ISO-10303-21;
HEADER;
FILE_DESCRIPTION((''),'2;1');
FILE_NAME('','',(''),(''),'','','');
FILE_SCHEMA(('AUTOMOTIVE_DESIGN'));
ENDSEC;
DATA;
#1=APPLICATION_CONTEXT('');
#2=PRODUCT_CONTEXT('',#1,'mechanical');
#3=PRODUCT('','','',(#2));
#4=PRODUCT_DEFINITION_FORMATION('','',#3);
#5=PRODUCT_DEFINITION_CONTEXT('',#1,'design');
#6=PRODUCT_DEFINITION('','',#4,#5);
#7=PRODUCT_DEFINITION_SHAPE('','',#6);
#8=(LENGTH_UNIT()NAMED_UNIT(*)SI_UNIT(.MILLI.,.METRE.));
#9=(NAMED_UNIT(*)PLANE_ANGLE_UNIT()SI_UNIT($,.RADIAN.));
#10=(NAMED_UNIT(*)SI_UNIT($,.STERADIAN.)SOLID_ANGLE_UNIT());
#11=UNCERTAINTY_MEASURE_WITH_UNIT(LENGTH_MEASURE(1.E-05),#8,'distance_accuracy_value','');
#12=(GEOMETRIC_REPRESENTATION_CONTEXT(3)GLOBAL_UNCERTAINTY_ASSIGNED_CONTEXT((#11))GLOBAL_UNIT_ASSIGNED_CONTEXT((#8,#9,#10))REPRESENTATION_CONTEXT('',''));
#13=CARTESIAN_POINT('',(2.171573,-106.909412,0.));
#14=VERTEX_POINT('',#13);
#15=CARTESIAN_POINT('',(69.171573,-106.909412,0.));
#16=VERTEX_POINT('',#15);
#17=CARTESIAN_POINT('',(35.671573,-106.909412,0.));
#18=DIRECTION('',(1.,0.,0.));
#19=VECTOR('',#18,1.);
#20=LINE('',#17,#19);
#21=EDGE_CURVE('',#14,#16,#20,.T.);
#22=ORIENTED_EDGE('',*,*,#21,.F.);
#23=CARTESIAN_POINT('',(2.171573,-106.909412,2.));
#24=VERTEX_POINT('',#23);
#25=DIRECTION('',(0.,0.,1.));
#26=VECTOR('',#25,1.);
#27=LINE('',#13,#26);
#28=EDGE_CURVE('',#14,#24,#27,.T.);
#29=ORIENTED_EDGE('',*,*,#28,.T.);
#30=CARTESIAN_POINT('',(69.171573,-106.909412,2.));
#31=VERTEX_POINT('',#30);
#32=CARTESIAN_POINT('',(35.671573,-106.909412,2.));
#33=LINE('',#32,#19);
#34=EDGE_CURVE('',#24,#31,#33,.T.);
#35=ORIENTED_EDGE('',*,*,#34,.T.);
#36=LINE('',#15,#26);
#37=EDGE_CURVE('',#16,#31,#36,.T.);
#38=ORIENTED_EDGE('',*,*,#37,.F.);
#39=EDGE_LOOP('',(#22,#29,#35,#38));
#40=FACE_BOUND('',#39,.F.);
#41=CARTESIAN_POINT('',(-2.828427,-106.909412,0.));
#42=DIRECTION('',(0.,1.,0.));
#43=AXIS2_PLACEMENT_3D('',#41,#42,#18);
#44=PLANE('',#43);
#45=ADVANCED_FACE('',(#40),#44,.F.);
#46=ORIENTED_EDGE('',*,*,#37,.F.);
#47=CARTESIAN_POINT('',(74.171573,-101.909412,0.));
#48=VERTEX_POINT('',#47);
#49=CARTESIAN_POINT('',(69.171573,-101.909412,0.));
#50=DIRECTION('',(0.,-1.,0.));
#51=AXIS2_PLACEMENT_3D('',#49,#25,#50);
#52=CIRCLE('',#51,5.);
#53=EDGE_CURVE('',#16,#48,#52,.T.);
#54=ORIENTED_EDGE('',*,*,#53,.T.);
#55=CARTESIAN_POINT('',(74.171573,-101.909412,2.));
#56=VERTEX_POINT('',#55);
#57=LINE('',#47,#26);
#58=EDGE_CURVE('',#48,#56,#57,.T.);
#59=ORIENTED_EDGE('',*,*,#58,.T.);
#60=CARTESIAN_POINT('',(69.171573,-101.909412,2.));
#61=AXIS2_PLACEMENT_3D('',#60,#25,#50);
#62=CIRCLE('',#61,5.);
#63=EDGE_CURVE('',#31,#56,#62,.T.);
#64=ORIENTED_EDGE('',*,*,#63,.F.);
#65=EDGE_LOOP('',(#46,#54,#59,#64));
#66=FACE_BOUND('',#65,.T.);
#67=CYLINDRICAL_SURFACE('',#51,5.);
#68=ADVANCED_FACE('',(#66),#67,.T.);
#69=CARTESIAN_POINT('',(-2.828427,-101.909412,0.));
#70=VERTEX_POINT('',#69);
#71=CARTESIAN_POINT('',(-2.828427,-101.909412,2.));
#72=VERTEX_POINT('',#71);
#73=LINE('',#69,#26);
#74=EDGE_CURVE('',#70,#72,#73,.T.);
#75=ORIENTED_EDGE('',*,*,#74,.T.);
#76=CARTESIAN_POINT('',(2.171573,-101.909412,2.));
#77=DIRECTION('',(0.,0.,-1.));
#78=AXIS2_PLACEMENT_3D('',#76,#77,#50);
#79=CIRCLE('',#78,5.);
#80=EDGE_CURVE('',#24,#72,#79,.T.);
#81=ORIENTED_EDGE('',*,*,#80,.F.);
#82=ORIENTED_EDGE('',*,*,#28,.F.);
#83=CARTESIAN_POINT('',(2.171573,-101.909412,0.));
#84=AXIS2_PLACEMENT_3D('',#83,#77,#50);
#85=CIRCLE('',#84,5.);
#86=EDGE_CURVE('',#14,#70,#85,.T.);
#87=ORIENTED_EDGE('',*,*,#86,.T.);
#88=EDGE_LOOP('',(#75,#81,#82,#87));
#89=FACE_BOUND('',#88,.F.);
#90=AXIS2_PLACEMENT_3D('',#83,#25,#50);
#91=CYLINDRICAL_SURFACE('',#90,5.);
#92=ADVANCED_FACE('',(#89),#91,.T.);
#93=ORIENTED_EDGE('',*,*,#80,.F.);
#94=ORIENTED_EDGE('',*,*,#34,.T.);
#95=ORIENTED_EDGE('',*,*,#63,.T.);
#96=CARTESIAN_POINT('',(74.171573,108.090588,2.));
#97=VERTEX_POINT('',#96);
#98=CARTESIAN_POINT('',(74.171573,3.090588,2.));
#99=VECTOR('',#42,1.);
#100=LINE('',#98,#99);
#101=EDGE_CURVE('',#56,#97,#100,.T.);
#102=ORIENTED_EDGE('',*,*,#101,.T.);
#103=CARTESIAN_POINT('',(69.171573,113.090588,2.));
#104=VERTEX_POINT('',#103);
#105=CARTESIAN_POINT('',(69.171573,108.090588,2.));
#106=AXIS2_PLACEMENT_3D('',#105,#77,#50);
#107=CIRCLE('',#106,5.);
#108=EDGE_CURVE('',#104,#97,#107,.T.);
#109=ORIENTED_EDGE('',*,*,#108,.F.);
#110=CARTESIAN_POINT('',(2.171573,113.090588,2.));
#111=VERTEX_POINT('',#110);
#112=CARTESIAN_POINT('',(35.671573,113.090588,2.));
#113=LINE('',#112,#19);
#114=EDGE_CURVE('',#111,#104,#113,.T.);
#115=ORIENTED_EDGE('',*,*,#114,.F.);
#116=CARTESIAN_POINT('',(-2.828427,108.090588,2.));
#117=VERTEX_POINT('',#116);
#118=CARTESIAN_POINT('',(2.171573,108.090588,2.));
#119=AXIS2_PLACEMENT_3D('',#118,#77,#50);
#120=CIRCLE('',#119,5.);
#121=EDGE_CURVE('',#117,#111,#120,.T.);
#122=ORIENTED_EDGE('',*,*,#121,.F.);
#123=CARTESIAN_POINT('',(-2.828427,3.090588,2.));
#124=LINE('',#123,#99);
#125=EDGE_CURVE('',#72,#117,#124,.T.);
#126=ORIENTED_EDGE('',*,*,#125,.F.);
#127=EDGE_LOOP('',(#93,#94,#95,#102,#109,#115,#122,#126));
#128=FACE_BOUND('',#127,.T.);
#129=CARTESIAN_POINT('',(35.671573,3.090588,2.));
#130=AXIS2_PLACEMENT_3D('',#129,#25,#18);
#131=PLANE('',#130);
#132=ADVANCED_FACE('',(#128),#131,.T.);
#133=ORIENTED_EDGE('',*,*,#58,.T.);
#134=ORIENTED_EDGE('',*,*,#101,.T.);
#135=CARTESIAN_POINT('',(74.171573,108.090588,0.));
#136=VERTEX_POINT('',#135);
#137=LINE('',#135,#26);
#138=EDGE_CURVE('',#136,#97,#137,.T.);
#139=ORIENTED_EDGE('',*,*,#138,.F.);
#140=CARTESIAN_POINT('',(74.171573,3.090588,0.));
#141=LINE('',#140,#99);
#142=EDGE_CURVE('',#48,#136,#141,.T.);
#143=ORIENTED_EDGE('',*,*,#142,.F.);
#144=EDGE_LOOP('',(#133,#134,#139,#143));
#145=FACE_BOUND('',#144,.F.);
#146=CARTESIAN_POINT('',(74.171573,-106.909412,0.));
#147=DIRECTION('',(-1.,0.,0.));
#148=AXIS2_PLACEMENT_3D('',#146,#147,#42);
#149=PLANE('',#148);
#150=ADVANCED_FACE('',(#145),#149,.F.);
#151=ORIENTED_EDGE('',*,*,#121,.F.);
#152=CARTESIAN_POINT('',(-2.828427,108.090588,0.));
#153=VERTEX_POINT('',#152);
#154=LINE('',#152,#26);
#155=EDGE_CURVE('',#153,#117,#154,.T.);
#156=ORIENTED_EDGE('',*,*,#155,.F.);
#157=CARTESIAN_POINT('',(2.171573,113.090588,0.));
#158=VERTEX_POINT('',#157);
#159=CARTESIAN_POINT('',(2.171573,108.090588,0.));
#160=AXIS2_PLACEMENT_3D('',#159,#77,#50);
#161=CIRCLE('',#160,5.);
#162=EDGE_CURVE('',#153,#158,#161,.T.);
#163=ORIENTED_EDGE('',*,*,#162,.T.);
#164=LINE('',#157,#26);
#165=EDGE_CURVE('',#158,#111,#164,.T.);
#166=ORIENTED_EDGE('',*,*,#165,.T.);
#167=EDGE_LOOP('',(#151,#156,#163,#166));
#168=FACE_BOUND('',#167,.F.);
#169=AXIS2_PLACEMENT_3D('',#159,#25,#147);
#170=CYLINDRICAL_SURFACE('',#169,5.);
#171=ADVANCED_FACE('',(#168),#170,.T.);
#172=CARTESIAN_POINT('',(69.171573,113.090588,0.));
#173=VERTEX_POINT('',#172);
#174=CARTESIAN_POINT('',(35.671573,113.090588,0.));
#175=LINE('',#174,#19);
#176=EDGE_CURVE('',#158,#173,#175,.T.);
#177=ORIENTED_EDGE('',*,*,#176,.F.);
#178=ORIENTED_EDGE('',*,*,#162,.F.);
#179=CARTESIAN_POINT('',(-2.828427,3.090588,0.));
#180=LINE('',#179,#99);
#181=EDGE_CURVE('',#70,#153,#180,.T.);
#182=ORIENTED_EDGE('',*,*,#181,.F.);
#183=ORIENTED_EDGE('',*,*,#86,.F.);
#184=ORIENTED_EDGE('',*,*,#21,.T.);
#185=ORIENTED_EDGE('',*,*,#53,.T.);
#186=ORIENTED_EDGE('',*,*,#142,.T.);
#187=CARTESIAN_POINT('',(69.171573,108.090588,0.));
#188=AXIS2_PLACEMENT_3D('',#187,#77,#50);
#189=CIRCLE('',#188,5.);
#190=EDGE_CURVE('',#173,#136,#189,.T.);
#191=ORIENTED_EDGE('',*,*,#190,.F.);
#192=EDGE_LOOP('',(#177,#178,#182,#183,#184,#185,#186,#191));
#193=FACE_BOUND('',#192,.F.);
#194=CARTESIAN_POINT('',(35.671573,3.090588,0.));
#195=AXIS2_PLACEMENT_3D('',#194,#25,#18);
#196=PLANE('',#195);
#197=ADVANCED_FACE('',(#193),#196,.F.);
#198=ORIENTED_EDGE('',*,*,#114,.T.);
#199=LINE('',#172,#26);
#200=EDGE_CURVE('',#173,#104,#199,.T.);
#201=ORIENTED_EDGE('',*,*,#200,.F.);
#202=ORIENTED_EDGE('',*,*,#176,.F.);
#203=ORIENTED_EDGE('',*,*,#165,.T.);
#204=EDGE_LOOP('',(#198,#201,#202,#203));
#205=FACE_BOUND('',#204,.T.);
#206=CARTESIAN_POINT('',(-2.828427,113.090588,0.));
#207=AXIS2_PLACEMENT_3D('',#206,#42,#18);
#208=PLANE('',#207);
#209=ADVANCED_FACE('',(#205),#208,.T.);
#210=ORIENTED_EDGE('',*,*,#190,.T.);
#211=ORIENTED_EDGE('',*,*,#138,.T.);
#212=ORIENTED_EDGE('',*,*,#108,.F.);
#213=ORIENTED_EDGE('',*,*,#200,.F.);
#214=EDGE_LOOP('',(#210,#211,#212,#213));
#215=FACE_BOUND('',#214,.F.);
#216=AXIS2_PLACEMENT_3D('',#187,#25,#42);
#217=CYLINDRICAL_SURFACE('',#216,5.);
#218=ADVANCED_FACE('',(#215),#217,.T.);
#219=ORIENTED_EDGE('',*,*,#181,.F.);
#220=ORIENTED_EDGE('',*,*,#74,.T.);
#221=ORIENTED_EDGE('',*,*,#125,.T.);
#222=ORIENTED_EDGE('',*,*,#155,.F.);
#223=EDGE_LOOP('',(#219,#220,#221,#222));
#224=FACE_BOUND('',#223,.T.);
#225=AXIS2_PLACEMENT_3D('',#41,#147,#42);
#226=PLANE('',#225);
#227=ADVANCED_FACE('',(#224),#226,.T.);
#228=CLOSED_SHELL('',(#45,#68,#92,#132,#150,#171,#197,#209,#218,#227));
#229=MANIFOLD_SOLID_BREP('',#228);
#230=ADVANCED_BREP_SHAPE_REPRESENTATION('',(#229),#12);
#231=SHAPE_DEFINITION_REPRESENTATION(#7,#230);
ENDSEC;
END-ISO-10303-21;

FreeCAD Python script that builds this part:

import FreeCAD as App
import Part
import Sketcher

V = App.Vector


def edges_at(feature, points):
    """Names of the edges that pass closest to the given points."""
    edges = feature.Shape.Edges
    near = lambda p: min(range(len(edges)), key=lambda i: edges[i].distToShape(Part.Vertex(*p))[0])
    return sorted({f"Edge{near(p) + 1}" for p in points})


def add_polygon(sketch, points):
    """Adds a closed chain of lines whose ends are joined by coincident constraints."""
    first, n = sketch.GeometryCount, len(points)
    for a, b in zip(points, points[1:] + points[:1]):
        sketch.addGeometry(Part.LineSegment(App.Vector(*a, 0), App.Vector(*b, 0)), False)
    for i in range(n):
        sketch.addConstraint(Sketcher.Constraint("Coincident", first + i, 2, first + (i + 1) % n, 1))

doc = App.newDocument("Part")
body = doc.addObject("PartDesign::Body", "Body")

sketch1 = body.newObject("Sketcher::SketchObject", "Sketch")
sketch1.AttachmentSupport = (doc.getObject("XY_Plane"), [""])
sketch1.MapMode = "FlatFace"
add_polygon(sketch1, [(-3, 113), (-3, -107), (74, -107), (74, 113)])
sketch1.addConstraint([
    Sketcher.Constraint("Vertical", 0),
    Sketcher.Constraint("Horizontal", 1),
    Sketcher.Constraint("Vertical", 2),
    Sketcher.Constraint("Horizontal", 3),
    Sketcher.Constraint("DistanceX", 1, 1, 1, 2, 77.0),
    Sketcher.Constraint("DistanceY", 0, 2, 0, 1, 220.0),
    Sketcher.Constraint("DistanceX", 0, 2, -1, 1, 2.828427),
    Sketcher.Constraint("DistanceY", 0, 2, -1, 1, 106.909412),
])
pad1 = body.newObject("PartDesign::Pad", "Pad")
pad1.Profile = sketch1
pad1.Length = 2
doc.recompute()

fillet = body.newObject("PartDesign::Fillet", "Fillet")
fillet.Base = (pad1, edges_at(pad1, [(74.172, -106.909, 1)]))
fillet.Radius = 5
doc.recompute()

fillet2 = body.newObject("PartDesign::Fillet", "Fillet001")
fillet2.Base = (fillet, edges_at(fillet, [(-2.828, -106.909, 1)]))
fillet2.Radius = 5
doc.recompute()

fillet3 = body.newObject("PartDesign::Fillet", "Fillet002")
fillet3.Base = (fillet2, edges_at(fillet2, [(-2.828, 113.091, 1)]))
fillet3.Radius = 5
doc.recompute()

fillet4 = body.newObject("PartDesign::Fillet", "Fillet003")
fillet4.Base = (fillet3, edges_at(fillet3, [(74.172, 113.091, 1)]))
fillet4.Radius = 5

doc.recompute()
